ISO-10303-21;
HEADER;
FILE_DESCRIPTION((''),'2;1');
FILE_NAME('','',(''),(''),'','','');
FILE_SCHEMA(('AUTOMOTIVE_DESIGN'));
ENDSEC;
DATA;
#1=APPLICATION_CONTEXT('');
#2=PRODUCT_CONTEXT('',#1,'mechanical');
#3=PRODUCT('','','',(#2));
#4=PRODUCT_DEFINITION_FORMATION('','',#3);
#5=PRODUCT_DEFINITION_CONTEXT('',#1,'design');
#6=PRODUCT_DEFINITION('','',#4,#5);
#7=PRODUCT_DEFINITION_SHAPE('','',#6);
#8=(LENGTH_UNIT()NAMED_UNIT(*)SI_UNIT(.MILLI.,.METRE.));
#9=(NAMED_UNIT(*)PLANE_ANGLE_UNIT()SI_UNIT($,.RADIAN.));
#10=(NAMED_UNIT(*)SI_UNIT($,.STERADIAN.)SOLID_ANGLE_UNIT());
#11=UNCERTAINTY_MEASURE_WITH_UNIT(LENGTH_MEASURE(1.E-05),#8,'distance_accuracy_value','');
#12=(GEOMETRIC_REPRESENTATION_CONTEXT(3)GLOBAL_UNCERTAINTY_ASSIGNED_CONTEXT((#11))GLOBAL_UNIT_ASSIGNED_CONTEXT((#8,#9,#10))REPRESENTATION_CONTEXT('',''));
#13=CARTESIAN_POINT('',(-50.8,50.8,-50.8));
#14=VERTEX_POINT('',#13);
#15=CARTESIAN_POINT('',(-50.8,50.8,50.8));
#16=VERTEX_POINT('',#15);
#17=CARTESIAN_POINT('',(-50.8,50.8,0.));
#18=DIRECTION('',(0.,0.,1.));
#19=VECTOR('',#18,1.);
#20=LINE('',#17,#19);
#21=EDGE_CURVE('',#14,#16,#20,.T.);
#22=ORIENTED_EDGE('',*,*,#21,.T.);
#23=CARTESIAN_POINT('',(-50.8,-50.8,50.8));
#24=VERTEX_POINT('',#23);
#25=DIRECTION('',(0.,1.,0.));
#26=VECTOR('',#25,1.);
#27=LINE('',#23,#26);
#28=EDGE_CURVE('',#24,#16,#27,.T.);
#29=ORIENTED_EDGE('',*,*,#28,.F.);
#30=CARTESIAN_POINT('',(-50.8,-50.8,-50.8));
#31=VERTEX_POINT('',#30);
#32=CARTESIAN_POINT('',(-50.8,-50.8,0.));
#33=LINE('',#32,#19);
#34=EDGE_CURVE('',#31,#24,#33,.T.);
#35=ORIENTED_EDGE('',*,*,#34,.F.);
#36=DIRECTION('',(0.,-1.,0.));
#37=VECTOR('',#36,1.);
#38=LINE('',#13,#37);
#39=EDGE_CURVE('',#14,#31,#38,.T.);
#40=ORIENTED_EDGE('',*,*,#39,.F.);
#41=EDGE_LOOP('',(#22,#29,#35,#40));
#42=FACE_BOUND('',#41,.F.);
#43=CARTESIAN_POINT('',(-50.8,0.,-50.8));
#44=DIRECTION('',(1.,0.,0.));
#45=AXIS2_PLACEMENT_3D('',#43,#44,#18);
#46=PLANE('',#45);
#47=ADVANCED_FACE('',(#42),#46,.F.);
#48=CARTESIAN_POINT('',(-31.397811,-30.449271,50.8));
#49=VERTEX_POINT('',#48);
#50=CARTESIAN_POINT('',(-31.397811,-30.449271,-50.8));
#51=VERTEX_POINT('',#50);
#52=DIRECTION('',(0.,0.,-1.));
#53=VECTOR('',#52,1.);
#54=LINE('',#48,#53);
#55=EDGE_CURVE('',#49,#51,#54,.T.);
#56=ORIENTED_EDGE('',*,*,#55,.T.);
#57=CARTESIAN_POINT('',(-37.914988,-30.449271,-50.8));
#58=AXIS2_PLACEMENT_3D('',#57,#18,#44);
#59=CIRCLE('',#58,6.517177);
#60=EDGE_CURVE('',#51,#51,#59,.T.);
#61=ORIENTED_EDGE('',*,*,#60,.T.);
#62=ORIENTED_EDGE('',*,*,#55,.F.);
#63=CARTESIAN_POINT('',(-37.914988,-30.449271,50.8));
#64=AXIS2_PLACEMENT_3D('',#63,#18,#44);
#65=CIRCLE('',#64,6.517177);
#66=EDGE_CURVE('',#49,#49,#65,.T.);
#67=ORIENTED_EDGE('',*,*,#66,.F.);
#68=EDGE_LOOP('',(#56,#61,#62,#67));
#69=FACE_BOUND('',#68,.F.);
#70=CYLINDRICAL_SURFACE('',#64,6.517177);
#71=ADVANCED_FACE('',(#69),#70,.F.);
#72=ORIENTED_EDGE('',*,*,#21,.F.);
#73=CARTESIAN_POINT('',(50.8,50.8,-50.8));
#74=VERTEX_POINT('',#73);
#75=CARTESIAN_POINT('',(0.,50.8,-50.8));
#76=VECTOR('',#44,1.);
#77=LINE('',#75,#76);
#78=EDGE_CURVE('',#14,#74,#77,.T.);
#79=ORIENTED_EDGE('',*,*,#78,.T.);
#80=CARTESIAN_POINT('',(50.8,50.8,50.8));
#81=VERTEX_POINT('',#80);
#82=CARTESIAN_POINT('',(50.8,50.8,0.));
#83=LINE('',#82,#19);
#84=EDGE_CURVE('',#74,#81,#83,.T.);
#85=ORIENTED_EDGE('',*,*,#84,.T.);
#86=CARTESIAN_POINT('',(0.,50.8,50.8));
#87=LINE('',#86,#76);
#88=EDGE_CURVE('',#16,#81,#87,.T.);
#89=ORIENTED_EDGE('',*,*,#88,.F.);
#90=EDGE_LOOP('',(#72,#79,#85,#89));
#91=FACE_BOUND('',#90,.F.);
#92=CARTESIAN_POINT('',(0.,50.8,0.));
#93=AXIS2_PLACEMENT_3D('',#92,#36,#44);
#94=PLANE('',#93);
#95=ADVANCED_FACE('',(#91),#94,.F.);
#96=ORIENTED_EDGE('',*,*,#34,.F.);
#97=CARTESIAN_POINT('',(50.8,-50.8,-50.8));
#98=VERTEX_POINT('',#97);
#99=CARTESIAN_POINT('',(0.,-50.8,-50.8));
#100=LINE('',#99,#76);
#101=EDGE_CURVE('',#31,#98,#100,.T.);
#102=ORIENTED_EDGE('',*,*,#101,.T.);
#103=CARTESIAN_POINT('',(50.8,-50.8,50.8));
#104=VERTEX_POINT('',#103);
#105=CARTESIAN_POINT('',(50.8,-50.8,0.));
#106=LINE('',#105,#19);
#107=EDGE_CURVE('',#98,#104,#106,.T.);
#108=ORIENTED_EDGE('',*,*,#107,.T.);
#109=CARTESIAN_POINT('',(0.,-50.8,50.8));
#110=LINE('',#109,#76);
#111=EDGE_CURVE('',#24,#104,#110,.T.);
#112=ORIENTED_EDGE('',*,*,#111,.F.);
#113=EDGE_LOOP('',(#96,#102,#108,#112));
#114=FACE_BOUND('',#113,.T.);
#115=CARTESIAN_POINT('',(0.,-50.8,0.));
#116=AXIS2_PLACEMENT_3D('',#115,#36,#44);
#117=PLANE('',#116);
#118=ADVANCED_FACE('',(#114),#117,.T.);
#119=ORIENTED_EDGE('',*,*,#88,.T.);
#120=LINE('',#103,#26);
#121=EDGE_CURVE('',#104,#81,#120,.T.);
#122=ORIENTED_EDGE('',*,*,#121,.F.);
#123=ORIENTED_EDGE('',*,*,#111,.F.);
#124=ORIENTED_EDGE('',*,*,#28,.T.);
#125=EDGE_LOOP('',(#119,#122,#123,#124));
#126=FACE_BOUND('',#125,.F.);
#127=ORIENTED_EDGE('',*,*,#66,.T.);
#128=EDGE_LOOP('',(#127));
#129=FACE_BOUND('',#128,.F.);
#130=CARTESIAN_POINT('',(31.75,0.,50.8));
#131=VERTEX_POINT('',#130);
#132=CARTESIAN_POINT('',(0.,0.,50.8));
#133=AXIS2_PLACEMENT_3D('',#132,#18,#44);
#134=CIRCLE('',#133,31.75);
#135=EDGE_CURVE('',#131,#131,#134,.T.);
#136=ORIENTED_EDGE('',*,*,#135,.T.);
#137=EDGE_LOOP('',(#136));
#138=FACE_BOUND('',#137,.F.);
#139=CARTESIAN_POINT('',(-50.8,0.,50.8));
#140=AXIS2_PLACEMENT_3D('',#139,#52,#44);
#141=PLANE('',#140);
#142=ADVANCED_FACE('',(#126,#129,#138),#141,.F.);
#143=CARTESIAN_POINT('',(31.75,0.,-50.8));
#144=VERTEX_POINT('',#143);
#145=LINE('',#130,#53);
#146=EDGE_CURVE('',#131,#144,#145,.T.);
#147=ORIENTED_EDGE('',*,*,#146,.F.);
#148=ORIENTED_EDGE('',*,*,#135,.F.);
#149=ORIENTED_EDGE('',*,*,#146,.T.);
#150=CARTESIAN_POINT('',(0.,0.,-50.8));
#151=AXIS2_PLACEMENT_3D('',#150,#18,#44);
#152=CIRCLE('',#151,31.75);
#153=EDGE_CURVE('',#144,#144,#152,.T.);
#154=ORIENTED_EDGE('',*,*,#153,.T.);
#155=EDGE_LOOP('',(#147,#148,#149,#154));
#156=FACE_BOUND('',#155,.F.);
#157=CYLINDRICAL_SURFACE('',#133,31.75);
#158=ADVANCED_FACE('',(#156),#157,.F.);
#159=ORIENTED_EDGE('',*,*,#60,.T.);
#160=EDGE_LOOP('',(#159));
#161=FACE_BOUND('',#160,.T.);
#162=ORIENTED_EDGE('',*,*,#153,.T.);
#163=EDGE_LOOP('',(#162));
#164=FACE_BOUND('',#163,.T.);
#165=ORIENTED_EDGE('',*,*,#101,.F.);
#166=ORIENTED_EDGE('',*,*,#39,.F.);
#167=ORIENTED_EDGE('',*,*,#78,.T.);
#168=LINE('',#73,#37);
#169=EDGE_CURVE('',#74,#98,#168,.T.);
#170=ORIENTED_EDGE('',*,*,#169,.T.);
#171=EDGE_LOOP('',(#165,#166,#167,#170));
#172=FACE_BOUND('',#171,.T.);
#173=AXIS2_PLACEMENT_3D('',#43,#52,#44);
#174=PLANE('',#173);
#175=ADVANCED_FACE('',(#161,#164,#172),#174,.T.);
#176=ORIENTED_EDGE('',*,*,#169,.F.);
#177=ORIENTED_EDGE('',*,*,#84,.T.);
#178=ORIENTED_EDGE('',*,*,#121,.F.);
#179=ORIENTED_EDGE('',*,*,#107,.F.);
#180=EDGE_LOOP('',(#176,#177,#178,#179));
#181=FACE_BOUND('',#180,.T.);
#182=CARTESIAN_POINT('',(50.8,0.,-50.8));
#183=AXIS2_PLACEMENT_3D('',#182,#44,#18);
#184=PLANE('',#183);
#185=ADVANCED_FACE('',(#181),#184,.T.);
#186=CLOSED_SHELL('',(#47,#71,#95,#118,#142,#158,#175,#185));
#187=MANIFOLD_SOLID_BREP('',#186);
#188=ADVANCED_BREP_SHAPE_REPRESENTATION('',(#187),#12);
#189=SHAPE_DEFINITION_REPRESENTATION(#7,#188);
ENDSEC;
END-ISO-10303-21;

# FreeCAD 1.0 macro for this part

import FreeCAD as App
import Part
import Sketcher

V = App.Vector
Q = App.Units.Quantity

doc = App.newDocument("Part")
body = doc.addObject("PartDesign::Body", "Body")

sketch1 = body.newObject("Sketcher::SketchObject", "Sketch")
sketch1.AttachmentSupport = (doc.getObject("XZ_Plane"), [""])
sketch1.MapMode = "FlatFace"
sketch1.addGeometry(Part.LineSegment(V(-51, 51, 0), V(-51, -51, 0)), False)
sketch1.addGeometry(Part.LineSegment(V(-51, -51, 0), V(51, -51, 0)), False)
sketch1.addGeometry(Part.LineSegment(V(51, -51, 0), V(51, 51, 0)), False)
sketch1.addGeometry(Part.LineSegment(V(51, 51, 0), V(-51, 51, 0)), False)
sketch1.addConstraint(Sketcher.Constraint("Coincident", 0, 2, 1, 1))
sketch1.addConstraint(Sketcher.Constraint("Coincident", 1, 2, 2, 1))
sketch1.addConstraint(Sketcher.Constraint("Coincident", 2, 2, 3, 1))
sketch1.addConstraint(Sketcher.Constraint("Coincident", 3, 2, 0, 1))
sketch1.addConstraint(Sketcher.Constraint("Vertical", 0))
sketch1.addConstraint(Sketcher.Constraint("Horizontal", 1))
sketch1.addConstraint(Sketcher.Constraint("Vertical", 2))
sketch1.addConstraint(Sketcher.Constraint("Horizontal", 3))
sketch1.addConstraint(Sketcher.Constraint("Symmetric", 0, 2, 2, 2, -1, 1))
sketch1.addConstraint(Sketcher.Constraint("Equal", 3, 0))
sketch1.addConstraint(Sketcher.Constraint("DistanceX", 1, 1, 1, 2, Q("4 in")))
pad1 = body.newObject("PartDesign::Pad", "Pad")
pad1.Profile = sketch1
pad1.Length = Q("4 in")
pad1.Midplane = True

sketch2 = body.newObject("Sketcher::SketchObject", "Sketch001")
sketch2.AttachmentSupport = (doc.getObject("XY_Plane"), [""])
sketch2.MapMode = "FlatFace"
sketch2.AttachmentOffset = App.Placement(V(0, 0, 2 * 25.4), App.Rotation())
sketch2.addGeometry(Part.Circle(V(0, 0, 0), V(0, 0, 1), 32), False)
sketch2.addConstraint(Sketcher.Constraint("Coincident", 0, 3, -1, 1))
sketch2.addConstraint(Sketcher.Constraint("Diameter", 0, Q("2.5 in")))
pocket1 = body.newObject("PartDesign::Pocket", "Pocket")
pocket1.Profile = sketch2
pocket1.Type = "ThroughAll"

sketch3 = body.newObject("Sketcher::SketchObject", "Sketch002")
sketch3.AttachmentSupport = (doc.getObject("XY_Plane"), [""])
sketch3.MapMode = "FlatFace"
sketch3.AttachmentOffset = App.Placement(V(0, 0, 2 * 25.4), App.Rotation())
sketch3.addGeometry(Part.Circle(V(-38, -30, 0), V(0, 0, 1), 7), False)
sketch3.addConstraint(Sketcher.Constraint("Diameter", 0, 13.034354))
sketch3.addConstraint(Sketcher.Constraint("DistanceY", 0, 3, -1, 1, 30.449271))
sketch3.addConstraint(Sketcher.Constraint("DistanceX", 0, 3, -1, 1, 37.914988))
pocket2 = body.newObject("PartDesign::Pocket", "Pocket001")
pocket2.Profile = sketch3
pocket2.Type = "ThroughAll"

doc.recompute()
